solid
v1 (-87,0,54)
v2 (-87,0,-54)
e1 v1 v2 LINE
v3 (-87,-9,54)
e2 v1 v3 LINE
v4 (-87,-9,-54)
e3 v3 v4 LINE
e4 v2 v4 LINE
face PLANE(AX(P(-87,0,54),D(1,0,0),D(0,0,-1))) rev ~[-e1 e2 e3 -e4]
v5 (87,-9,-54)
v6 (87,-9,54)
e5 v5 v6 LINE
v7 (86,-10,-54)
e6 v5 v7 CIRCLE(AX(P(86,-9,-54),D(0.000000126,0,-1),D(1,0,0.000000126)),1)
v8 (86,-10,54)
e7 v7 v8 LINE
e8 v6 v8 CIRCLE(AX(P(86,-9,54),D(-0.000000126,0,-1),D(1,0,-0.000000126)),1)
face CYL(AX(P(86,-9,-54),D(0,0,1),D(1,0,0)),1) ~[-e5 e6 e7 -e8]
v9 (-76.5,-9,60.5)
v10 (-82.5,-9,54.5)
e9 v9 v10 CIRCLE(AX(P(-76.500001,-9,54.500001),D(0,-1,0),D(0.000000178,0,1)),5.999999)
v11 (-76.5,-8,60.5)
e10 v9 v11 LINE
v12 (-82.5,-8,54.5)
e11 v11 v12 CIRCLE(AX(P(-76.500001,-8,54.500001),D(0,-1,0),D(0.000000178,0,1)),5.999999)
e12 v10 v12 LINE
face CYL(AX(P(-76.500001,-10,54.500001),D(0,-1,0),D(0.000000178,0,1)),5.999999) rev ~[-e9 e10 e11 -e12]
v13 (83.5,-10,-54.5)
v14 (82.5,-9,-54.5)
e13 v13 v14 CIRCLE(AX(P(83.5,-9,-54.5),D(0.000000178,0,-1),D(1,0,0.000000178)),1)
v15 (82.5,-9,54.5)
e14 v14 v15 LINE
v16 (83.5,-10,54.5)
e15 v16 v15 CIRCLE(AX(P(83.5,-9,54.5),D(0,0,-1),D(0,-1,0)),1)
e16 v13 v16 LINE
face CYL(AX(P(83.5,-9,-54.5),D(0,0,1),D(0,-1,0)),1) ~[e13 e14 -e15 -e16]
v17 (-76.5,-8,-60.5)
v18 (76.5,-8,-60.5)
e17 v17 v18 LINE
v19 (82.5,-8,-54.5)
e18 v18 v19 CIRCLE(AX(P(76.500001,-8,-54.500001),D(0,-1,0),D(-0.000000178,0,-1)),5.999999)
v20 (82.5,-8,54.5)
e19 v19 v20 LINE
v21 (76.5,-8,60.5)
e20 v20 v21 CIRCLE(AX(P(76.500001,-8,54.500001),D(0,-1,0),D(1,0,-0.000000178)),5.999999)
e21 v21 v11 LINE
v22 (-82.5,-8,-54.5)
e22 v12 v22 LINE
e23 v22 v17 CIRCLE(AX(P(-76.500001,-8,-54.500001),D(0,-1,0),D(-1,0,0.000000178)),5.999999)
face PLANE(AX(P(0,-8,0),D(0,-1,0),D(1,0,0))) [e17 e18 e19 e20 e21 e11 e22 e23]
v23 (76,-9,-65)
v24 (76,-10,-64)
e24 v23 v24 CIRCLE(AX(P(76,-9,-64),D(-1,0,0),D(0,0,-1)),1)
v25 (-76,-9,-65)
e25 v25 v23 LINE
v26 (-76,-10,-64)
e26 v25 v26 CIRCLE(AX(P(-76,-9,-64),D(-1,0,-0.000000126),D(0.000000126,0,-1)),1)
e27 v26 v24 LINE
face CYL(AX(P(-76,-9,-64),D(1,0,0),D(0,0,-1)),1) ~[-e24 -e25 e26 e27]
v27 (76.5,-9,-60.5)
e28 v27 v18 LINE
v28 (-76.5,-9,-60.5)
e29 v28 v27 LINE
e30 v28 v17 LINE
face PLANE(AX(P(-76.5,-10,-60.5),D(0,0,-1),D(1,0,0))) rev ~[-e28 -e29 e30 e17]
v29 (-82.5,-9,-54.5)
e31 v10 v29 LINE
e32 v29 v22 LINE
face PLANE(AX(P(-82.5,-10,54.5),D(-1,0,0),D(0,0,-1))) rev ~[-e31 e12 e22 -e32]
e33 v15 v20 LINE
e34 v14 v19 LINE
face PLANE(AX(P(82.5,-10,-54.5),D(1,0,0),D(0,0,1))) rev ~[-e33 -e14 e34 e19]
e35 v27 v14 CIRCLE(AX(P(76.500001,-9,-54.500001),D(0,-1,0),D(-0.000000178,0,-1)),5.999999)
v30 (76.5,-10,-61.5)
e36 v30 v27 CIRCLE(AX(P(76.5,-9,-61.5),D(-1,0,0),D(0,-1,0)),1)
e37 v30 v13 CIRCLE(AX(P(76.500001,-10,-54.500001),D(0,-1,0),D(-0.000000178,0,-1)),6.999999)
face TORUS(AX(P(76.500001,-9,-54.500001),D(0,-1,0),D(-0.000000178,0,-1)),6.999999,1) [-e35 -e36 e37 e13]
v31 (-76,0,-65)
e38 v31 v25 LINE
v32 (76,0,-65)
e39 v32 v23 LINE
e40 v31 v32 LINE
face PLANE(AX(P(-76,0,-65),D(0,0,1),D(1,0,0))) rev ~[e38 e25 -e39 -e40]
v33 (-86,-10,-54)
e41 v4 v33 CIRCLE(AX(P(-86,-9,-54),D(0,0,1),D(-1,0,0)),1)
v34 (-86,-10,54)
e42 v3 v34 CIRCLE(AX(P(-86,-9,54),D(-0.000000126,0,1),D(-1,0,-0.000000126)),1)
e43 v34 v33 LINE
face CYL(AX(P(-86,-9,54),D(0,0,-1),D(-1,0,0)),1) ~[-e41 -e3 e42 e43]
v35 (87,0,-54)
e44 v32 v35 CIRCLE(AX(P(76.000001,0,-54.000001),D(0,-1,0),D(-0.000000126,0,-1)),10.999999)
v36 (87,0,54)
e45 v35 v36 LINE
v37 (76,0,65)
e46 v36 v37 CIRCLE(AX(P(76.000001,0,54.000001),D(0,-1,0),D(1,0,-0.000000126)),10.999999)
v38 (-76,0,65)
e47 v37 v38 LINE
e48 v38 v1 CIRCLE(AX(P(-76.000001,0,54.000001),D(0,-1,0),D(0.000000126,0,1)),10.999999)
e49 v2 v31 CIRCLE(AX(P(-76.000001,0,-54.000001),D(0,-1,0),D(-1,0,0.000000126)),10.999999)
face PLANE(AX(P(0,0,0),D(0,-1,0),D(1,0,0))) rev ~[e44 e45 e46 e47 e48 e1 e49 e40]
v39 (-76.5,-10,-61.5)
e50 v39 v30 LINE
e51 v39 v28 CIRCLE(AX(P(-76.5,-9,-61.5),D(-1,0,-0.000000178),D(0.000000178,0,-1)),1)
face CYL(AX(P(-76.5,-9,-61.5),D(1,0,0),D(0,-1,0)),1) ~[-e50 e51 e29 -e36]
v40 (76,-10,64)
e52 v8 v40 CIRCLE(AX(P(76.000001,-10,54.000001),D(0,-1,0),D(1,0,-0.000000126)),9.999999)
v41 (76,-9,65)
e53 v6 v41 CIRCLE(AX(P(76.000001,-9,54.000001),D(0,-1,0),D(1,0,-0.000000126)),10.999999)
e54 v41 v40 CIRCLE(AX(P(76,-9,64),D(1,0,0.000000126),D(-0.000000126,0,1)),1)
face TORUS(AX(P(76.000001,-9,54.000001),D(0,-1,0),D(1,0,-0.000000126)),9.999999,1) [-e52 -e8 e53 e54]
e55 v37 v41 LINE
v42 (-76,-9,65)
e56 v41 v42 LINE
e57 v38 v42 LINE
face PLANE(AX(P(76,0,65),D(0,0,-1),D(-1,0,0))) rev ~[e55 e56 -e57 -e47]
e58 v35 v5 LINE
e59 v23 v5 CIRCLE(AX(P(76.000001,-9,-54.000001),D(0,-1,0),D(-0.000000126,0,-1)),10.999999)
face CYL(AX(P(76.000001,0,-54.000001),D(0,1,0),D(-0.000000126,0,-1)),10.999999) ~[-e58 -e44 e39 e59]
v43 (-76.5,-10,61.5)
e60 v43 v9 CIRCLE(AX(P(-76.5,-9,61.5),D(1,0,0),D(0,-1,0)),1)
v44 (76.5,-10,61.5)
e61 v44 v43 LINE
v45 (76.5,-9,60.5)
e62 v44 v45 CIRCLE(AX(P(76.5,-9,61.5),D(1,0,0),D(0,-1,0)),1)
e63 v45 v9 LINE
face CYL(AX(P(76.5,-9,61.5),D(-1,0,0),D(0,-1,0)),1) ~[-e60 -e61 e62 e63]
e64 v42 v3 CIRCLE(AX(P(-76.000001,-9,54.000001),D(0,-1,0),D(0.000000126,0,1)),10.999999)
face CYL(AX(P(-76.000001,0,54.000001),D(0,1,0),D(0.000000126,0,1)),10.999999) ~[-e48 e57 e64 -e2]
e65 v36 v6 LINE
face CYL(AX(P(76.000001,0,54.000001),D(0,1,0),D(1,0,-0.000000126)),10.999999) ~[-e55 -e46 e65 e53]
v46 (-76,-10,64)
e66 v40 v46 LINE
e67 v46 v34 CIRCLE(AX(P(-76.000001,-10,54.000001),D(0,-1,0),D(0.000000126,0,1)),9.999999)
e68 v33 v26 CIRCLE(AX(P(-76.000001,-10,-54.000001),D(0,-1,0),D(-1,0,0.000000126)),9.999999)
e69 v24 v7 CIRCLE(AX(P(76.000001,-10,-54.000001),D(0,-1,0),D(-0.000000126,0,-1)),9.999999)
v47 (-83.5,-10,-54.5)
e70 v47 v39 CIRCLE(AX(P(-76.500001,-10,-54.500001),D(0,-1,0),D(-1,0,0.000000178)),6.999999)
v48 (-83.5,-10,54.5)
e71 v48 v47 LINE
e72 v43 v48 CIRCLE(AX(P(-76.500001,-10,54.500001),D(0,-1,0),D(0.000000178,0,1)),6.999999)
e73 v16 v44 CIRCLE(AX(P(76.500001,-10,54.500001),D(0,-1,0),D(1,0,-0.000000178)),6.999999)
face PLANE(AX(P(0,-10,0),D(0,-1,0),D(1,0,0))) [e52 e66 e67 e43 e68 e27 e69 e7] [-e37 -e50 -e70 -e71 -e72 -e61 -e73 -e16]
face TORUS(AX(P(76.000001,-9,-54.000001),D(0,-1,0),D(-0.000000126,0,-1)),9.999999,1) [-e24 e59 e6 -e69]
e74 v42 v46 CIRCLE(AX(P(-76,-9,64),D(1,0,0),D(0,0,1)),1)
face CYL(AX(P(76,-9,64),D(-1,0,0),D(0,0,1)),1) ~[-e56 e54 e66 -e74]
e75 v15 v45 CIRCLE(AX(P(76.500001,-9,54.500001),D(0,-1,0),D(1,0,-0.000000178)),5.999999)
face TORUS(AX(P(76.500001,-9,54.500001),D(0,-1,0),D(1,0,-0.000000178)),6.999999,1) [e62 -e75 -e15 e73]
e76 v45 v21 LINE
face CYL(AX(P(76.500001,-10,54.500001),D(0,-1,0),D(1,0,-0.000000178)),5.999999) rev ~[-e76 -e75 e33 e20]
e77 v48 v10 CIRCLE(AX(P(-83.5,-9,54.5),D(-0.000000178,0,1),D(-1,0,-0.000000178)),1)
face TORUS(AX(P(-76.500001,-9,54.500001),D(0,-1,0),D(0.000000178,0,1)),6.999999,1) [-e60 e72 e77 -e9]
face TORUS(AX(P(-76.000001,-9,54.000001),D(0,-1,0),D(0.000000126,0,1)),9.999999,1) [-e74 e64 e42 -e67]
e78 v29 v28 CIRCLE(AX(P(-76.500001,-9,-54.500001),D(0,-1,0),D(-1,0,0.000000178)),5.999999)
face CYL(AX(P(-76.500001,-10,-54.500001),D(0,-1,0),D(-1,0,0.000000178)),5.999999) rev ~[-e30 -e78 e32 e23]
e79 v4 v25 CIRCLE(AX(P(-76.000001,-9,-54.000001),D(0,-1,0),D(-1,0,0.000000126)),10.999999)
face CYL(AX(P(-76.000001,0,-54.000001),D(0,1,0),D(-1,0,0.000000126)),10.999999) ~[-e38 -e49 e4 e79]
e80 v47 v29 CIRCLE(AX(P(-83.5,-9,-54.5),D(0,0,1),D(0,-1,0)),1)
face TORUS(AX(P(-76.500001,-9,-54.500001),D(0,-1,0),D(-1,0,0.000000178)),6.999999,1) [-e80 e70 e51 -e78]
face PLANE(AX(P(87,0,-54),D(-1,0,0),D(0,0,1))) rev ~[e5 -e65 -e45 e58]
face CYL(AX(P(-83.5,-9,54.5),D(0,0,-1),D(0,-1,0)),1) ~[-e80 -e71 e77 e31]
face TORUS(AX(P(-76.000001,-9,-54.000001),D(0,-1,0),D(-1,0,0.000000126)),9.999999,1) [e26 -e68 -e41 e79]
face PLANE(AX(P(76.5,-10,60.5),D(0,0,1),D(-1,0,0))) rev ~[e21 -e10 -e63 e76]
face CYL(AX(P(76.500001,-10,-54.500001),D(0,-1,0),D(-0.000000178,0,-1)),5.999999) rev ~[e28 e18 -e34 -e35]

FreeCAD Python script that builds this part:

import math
import FreeCAD as App
import Part
import Sketcher


def edges_at(feature, points):
    """Names of the edges that pass closest to the given points."""
    edges = feature.Shape.Edges
    near = lambda p: min(range(len(edges)), key=lambda i: edges[i].distToShape(Part.Vertex(*p))[0])
    return sorted({f"Edge{near(p) + 1}" for p in points})

doc = App.newDocument("Part")
params = doc.addObject("Spreadsheet::Sheet", "Params")
for row, (alias, value) in enumerate([
    ("sketch1_radius", "10.999999 mm"),
    ("sketch1_width", "152 mm"),
    ("sketch1_height", "108 mm"),
    ("pad1_length", "10 mm"),
    ("sketch2_radius", "5.999999 mm"),
    ("sketch2_width", "153 mm"),
    ("sketch2_height", "109 mm"),
    ("pocket1_length", "2 mm"),
    ("fillet_radius", "1 mm"),
], start=1):
    params.set(f"A{row}", alias)
    params.set(f"B{row}", "=" + value)
    params.setAlias(f"B{row}", alias)

body = doc.addObject("PartDesign::Body", "Body")

# Sketch on XZ plane
sketch1 = doc.addObject("Sketcher::SketchObject", "Sketch")
body.addObject(sketch1)
sketch1.AttachmentSupport = (doc.XZ_Plane, [""])
sketch1.MapMode = "FlatFace"
sketch1.addGeometry(Part.ArcOfCircle(Part.Circle(App.Vector(76, 54, 0), App.Vector(0, 0, 1), 11), math.radians(0), math.radians(90)), False)
sketch1.addGeometry(Part.LineSegment(App.Vector(76, 65, 0), App.Vector(-76, 65, 0)), False)
sketch1.addGeometry(Part.ArcOfCircle(Part.Circle(App.Vector(-76, 54, 0), App.Vector(0, 0, 1), 11), math.radians(90), math.radians(180)), False)
sketch1.addGeometry(Part.LineSegment(App.Vector(-87, 54, 0), App.Vector(-87, -54, 0)), False)
sketch1.addGeometry(Part.ArcOfCircle(Part.Circle(App.Vector(-76, -54, 0), App.Vector(0, 0, 1), 11), math.radians(180), math.radians(270)), False)
sketch1.addGeometry(Part.LineSegment(App.Vector(-76, -65, 0), App.Vector(76, -65, 0)), False)
sketch1.addGeometry(Part.ArcOfCircle(Part.Circle(App.Vector(76, -54, 0), App.Vector(0, 0, 1), 11), math.radians(-90), math.radians(0)), False)
sketch1.addGeometry(Part.LineSegment(App.Vector(87, -54, 0), App.Vector(87, 54, 0)), False)
sketch1.addConstraint(Sketcher.Constraint("Tangent", 0, 2, 1, 1))
sketch1.addConstraint(Sketcher.Constraint("Tangent", 1, 2, 2, 1))
sketch1.addConstraint(Sketcher.Constraint("Tangent", 2, 2, 3, 1))
sketch1.addConstraint(Sketcher.Constraint("Tangent", 3, 2, 4, 1))
sketch1.addConstraint(Sketcher.Constraint("Tangent", 4, 2, 5, 1))
sketch1.addConstraint(Sketcher.Constraint("Tangent", 5, 2, 6, 1))
sketch1.addConstraint(Sketcher.Constraint("Tangent", 6, 2, 7, 1))
sketch1.addConstraint(Sketcher.Constraint("Tangent", 7, 2, 0, 1))
sketch1.addConstraint(Sketcher.Constraint("Horizontal", 1))
sketch1.addConstraint(Sketcher.Constraint("Vertical", 3))
sketch1.addConstraint(Sketcher.Constraint("Horizontal", 5))
sketch1.addConstraint(Sketcher.Constraint("Vertical", 7))
sketch1.addConstraint(Sketcher.Constraint("Equal", 0, 2))
sketch1.addConstraint(Sketcher.Constraint("Equal", 2, 4))
sketch1.addConstraint(Sketcher.Constraint("Equal", 4, 6))
sketch1.addConstraint(Sketcher.Constraint("Symmetric", 0, 3, 4, 3, -1, 1))
sketch1.addConstraint(Sketcher.Constraint("Radius", 0, 10.999999))
sketch1.addConstraint(Sketcher.Constraint("DistanceX", 1, 2, 1, 1, 152.0))
sketch1.addConstraint(Sketcher.Constraint("DistanceY", 3, 2, 3, 1, 108.0))
sketch1.setExpression("Constraints[16]", "Params.sketch1_radius")
sketch1.setExpression("Constraints[17]", "Params.sketch1_width")
sketch1.setExpression("Constraints[18]", "Params.sketch1_height")
pad1 = doc.addObject("PartDesign::Pad", "Pad")
body.addObject(pad1)
pad1.Profile = sketch1
pad1.setExpression("Length", "Params.pad1_length")

# Sketch on XZ plane
sketch2 = doc.addObject("Sketcher::SketchObject", "Sketch001")
body.addObject(sketch2)
sketch2.AttachmentSupport = (doc.XZ_Plane, [""])
sketch2.MapMode = "FlatFace"
sketch2.AttachmentOffset = App.Placement(App.Vector(0, 0, 10), App.Rotation())
sketch2.addGeometry(Part.LineSegment(App.Vector(76, 60, 0), App.Vector(-76, 60, 0)), False)
sketch2.addGeometry(Part.ArcOfCircle(Part.Circle(App.Vector(-77, 55, 0), App.Vector(0, 0, 1), 6), math.radians(90), math.radians(180)), False)
sketch2.addGeometry(Part.LineSegment(App.Vector(-82, 54, 0), App.Vector(-82, -54, 0)), False)
sketch2.addGeometry(Part.ArcOfCircle(Part.Circle(App.Vector(-77, -55, 0), App.Vector(0, 0, 1), 6), math.radians(180), math.radians(270)), False)
sketch2.addGeometry(Part.LineSegment(App.Vector(-76, -60, 0), App.Vector(76, -60, 0)), False)
sketch2.addGeometry(Part.ArcOfCircle(Part.Circle(App.Vector(77, -55, 0), App.Vector(0, 0, 1), 6), math.radians(-90), math.radians(0)), False)
sketch2.addGeometry(Part.LineSegment(App.Vector(82, -54, 0), App.Vector(82, 54, 0)), False)
sketch2.addGeometry(Part.ArcOfCircle(Part.Circle(App.Vector(77, 55, 0), App.Vector(0, 0, 1), 6), math.radians(0), math.radians(90)), False)
sketch2.addConstraint(Sketcher.Constraint("Tangent", 0, 2, 1, 1))
sketch2.addConstraint(Sketcher.Constraint("Tangent", 1, 2, 2, 1))
sketch2.addConstraint(Sketcher.Constraint("Tangent", 2, 2, 3, 1))
sketch2.addConstraint(Sketcher.Constraint("Tangent", 3, 2, 4, 1))
sketch2.addConstraint(Sketcher.Constraint("Tangent", 4, 2, 5, 1))
sketch2.addConstraint(Sketcher.Constraint("Tangent", 5, 2, 6, 1))
sketch2.addConstraint(Sketcher.Constraint("Tangent", 6, 2, 7, 1))
sketch2.addConstraint(Sketcher.Constraint("Tangent", 7, 2, 0, 1))
sketch2.addConstraint(Sketcher.Constraint("Horizontal", 0))
sketch2.addConstraint(Sketcher.Constraint("Vertical", 2))
sketch2.addConstraint(Sketcher.Constraint("Horizontal", 4))
sketch2.addConstraint(Sketcher.Constraint("Vertical", 6))
sketch2.addConstraint(Sketcher.Constraint("Equal", 1, 3))
sketch2.addConstraint(Sketcher.Constraint("Equal", 3, 5))
sketch2.addConstraint(Sketcher.Constraint("Equal", 5, 7))
sketch2.addConstraint(Sketcher.Constraint("Symmetric", 1, 3, 5, 3, -1, 1))
sketch2.addConstraint(Sketcher.Constraint("Radius", 1, 5.999999))
sketch2.addConstraint(Sketcher.Constraint("DistanceX", 0, 2, 0, 1, 153.0))
sketch2.addConstraint(Sketcher.Constraint("DistanceY", 2, 2, 2, 1, 109.0))
sketch2.setExpression("Constraints[16]", "Params.sketch2_radius")
sketch2.setExpression("Constraints[17]", "Params.sketch2_width")
sketch2.setExpression("Constraints[18]", "Params.sketch2_height")
pocket1 = doc.addObject("PartDesign::Pocket", "Pocket")
body.addObject(pocket1)
pocket1.Profile = sketch2
pocket1.setExpression("Length", "Params.pocket1_length")
doc.recompute()

fillet = doc.addObject("PartDesign::Fillet", "Fillet")
body.addObject(fillet)
fillet.Base = (pocket1, edges_at(pocket1, [
    (83.778, -10, 61.778),
    (87, -10, 0),
    (0, -10, 65),
    (83.778, -10, -61.778),
    (-83.778, -10, 61.778),
    (0, -10, -65),
    (-87, -10, 0),
    (-83.778, -10, -61.778),
    (0, -10, 60.5),
    (-80.743, -10, 58.743),
    (-82.5, -10, 0),
    (-80.743, -10, -58.743),
    (0, -10, -60.5),
    (80.743, -10, -58.743),
    (82.5, -10, 0),
    (80.743, -10, 58.743),
]))
fillet.setExpression("Radius", "Params.fillet_radius")

doc.recompute()
